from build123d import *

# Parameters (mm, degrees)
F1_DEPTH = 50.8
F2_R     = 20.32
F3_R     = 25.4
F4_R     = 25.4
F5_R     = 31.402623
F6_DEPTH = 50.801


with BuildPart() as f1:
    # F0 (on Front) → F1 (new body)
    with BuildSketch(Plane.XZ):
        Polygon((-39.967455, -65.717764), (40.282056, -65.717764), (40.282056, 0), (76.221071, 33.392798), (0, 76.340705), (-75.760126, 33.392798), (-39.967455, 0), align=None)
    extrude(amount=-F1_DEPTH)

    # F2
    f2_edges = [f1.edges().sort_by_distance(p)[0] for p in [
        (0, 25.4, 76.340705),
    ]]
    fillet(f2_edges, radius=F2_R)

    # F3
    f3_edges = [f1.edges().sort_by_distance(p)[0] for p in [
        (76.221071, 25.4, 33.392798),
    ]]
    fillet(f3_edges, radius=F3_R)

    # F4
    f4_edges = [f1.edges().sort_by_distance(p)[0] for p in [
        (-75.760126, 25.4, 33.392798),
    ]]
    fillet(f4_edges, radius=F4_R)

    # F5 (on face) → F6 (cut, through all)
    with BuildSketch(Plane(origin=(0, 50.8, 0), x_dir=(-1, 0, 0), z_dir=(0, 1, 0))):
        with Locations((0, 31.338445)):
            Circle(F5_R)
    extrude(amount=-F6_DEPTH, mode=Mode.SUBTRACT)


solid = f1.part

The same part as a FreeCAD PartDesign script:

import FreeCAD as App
import Part
import Sketcher
Q = App.Units.Quantity


def edges_at(feature, points):
    """Names of the edges that pass closest to the given points."""
    edges = feature.Shape.Edges
    near = lambda p: min(range(len(edges)), key=lambda i: edges[i].distToShape(Part.Vertex(*p))[0])
    return sorted({f"Edge{near(p) + 1}" for p in points})

doc = App.newDocument("Part")
params = doc.addObject("Spreadsheet::Sheet", "Params")
for row, (alias, value) in enumerate([
    ("pad1_length", "2 in"),
    ("fillet_radius", "0.8 in"),
    ("fillet2_radius", "1 in"),
    ("fillet3_radius", "1 in"),
], start=1):
    params.set(f"A{row}", alias)
    params.set(f"B{row}", "=" + value)
    params.setAlias(f"B{row}", alias)

body = doc.addObject("PartDesign::Body", "Body")

# Sketch on XZ plane
sketch1 = body.newObject("Sketcher::SketchObject", "Sketch")
sketch1.AttachmentSupport = (doc.getObject("XZ_Plane"), [""])
sketch1.MapMode = "FlatFace"
sketch1.addGeometry(Part.LineSegment(App.Vector(-40, -66, 0), App.Vector(40, -66, 0)), False)
sketch1.addGeometry(Part.LineSegment(App.Vector(40, -66, 0), App.Vector(40, 0, 0)), False)
sketch1.addGeometry(Part.LineSegment(App.Vector(40, 0, 0), App.Vector(76, 33, 0)), False)
sketch1.addGeometry(Part.LineSegment(App.Vector(76, 33, 0), App.Vector(0, 76, 0)), False)
sketch1.addGeometry(Part.LineSegment(App.Vector(0, 76, 0), App.Vector(-76, 33, 0)), False)
sketch1.addGeometry(Part.LineSegment(App.Vector(-76, 33, 0), App.Vector(-40, 0, 0)), False)
sketch1.addGeometry(Part.LineSegment(App.Vector(-40, 0, 0), App.Vector(-40, -66, 0)), False)
sketch1.addConstraint(Sketcher.Constraint("Coincident", 0, 2, 1, 1))
sketch1.addConstraint(Sketcher.Constraint("Coincident", 1, 2, 2, 1))
sketch1.addConstraint(Sketcher.Constraint("Coincident", 2, 2, 3, 1))
sketch1.addConstraint(Sketcher.Constraint("Coincident", 3, 2, 4, 1))
sketch1.addConstraint(Sketcher.Constraint("Coincident", 4, 2, 5, 1))
sketch1.addConstraint(Sketcher.Constraint("Coincident", 5, 2, 6, 1))
sketch1.addConstraint(Sketcher.Constraint("Coincident", 6, 2, 0, 1))
sketch1.addConstraint(Sketcher.Constraint("Horizontal", 0))
sketch1.addConstraint(Sketcher.Constraint("Vertical", 1))
sketch1.addConstraint(Sketcher.Constraint("Vertical", 6))
sketch1.addConstraint(Sketcher.Constraint("PointOnObject", 1, 2, -1))
sketch1.addConstraint(Sketcher.Constraint("PointOnObject", 3, 2, -2))
sketch1.addConstraint(Sketcher.Constraint("PointOnObject", 5, 2, -1))
sketch1.addConstraint(Sketcher.Constraint("Horizontal", 2, 2, 4, 2))
sketch1.addConstraint(Sketcher.Constraint("DistanceX", 0, 1, 0, 2, Q("80.249511 mm")))
sketch1.addConstraint(Sketcher.Constraint("Distance", 3, Q("87.488139 mm")))
sketch1.addConstraint(Sketcher.Constraint("Distance", 4, Q("87.08685 mm")))
sketch1.addConstraint(Sketcher.Constraint("DistanceY", 1, 1, 1, 2, Q("65.717764 mm")))
sketch1.addConstraint(Sketcher.Constraint("DistanceX", -1, 1, 2, 2, Q("76.221071 mm")))
sketch1.addConstraint(Sketcher.Constraint("DistanceY", 0, 2, 2, 2, Q("99.110562 mm")))
sketch1.addConstraint(Sketcher.Constraint("DistanceX", 4, 2, 1, 2, Q("116.042182 mm")))
pad1 = body.newObject("PartDesign::Pad", "Pad")
pad1.Profile = sketch1
pad1.setExpression("Length", "Params.pad1_length")
pad1.Reversed = True
doc.recompute()

fillet = body.newObject("PartDesign::Fillet", "Fillet")
fillet.Base = (pad1, edges_at(pad1, [(0, 25.4, 76.341)]))
fillet.setExpression("Radius", "Params.fillet_radius")
doc.recompute()

fillet2 = body.newObject("PartDesign::Fillet", "Fillet001")
fillet2.Base = (fillet, edges_at(fillet, [(76.221, 25.4, 33.393)]))
fillet2.setExpression("Radius", "Params.fillet2_radius")
doc.recompute()

fillet3 = body.newObject("PartDesign::Fillet", "Fillet002")
fillet3.Base = (fillet2, edges_at(fillet2, [(-75.76, 25.4, 33.393)]))
fillet3.setExpression("Radius", "Params.fillet3_radius")

# Sketch on XZ plane
sketch2 = body.newObject("Sketcher::SketchObject", "Sketch001")
sketch2.AttachmentSupport = (doc.getObject("XZ_Plane"), [""])
sketch2.MapMode = "FlatFace"
sketch2.AttachmentOffset = App.Placement(App.Vector(0, 0, -2 * 25.4), App.Rotation())
sketch2.addGeometry(Part.Circle(App.Vector(0, 31, 0), App.Vector(0, 0, 1), 31), False)
sketch2.addConstraint(Sketcher.Constraint("PointOnObject", 0, 3, -2))
sketch2.addConstraint(Sketcher.Constraint("Diameter", 0, Q("62.805246 mm")))
sketch2.addConstraint(Sketcher.Constraint("DistanceY", -1, 1, 0, 3, Q("31.338445 mm")))
pocket1 = body.newObject("PartDesign::Pocket", "Pocket")
pocket1.Profile = sketch2
pocket1.Type = "ThroughAll"
pocket1.Reversed = True

doc.recompute()
